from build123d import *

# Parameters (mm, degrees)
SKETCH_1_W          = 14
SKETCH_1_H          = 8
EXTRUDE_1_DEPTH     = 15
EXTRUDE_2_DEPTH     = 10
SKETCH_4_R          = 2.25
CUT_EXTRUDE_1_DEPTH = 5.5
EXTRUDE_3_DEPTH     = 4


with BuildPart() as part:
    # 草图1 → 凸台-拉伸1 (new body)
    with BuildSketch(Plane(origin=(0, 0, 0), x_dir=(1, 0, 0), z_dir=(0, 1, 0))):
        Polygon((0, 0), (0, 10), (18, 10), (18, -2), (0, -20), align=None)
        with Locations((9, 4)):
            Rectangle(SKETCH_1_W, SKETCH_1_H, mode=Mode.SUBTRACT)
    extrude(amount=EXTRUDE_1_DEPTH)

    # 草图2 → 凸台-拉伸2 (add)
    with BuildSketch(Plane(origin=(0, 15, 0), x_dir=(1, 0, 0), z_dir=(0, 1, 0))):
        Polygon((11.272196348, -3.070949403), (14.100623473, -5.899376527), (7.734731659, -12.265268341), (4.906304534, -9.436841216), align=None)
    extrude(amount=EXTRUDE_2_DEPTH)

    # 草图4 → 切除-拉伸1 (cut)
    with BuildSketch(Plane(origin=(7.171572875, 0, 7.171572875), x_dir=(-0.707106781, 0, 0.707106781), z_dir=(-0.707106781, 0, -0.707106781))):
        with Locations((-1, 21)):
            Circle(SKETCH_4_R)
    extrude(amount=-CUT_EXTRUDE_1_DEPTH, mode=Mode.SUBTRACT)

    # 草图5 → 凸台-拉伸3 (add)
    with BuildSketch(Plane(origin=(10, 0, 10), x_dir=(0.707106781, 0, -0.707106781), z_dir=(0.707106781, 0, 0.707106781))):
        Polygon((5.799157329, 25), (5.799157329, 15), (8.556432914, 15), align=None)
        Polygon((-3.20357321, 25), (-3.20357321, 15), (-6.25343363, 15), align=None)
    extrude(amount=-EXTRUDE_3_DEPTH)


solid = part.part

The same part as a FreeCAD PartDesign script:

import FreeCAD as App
import Part
import Sketcher
Q = App.Units.Quantity


def add_polygon(sketch, points):
    """Adds a closed chain of lines whose ends are joined by coincident constraints."""
    first, n = sketch.GeometryCount, len(points)
    for a, b in zip(points, points[1:] + points[:1]):
        sketch.addGeometry(Part.LineSegment(App.Vector(*a, 0), App.Vector(*b, 0)), False)
    for i in range(n):
        sketch.addConstraint(Sketcher.Constraint("Coincident", first + i, 2, first + (i + 1) % n, 1))

doc = App.newDocument("Part")
body = doc.addObject("PartDesign::Body", "Body")

# Sketch on XZ plane
sketch1 = body.newObject("Sketcher::SketchObject", "Sketch")
sketch1.AttachmentSupport = (doc.getObject("XZ_Plane"), [""])
sketch1.MapMode = "FlatFace"
add_polygon(sketch1, [(0, -10), (0, 20), (18, 2), (18, -10)])  # lines 0-3
add_polygon(sketch1, [(2, 0), (2, -8), (16, -8), (16, 0)])  # lines 4-7
sketch1.addConstraint(Sketcher.Constraint("Vertical", 0))
sketch1.addConstraint(Sketcher.Constraint("Vertical", 2))
sketch1.addConstraint(Sketcher.Constraint("Horizontal", 3))
sketch1.addConstraint(Sketcher.Constraint("Vertical", 4))
sketch1.addConstraint(Sketcher.Constraint("Horizontal", 5))
sketch1.addConstraint(Sketcher.Constraint("Vertical", 6))
sketch1.addConstraint(Sketcher.Constraint("Horizontal", 7))
sketch1.addConstraint(Sketcher.Constraint("PointOnObject", 0, 2, -2))
sketch1.addConstraint(Sketcher.Constraint("PointOnObject", 6, 2, -1))
sketch1.addConstraint(Sketcher.Constraint("DistanceX", 3, 2, 3, 1, 18.0))
sketch1.addConstraint(Sketcher.Constraint("DistanceX", 5, 1, 5, 2, 14.0))
sketch1.addConstraint(Sketcher.Constraint("DistanceY", 0, 1, 0, 2, 30.0))
sketch1.addConstraint(Sketcher.Constraint("DistanceY", 2, 2, 2, 1, 12.0))
sketch1.addConstraint(Sketcher.Constraint("DistanceY", 4, 2, 4, 1, 8.0))
sketch1.addConstraint(Sketcher.Constraint("DistanceY", -1, 1, 0, 2, 20.0))
sketch1.addConstraint(Sketcher.Constraint("DistanceX", -1, 1, 4, 2, 2.0))
pad1 = body.newObject("PartDesign::Pad", "Pad")
pad1.Profile = sketch1
pad1.Length = 15
pad1.Reversed = True

# Sketch on XZ plane
sketch2 = body.newObject("Sketcher::SketchObject", "Sketch001")
sketch2.AttachmentSupport = (doc.getObject("XZ_Plane"), [""])
sketch2.MapMode = "FlatFace"
sketch2.AttachmentOffset = App.Placement(App.Vector(0, 0, -15), App.Rotation())
add_polygon(sketch2, [(14.1, 5.9), (11.3, 3.1), (4.9, 9.4), (7.7, 12.3)])  # lines 0-3
sketch2.addConstraint(Sketcher.Constraint("Perpendicular", 0, 1))
sketch2.addConstraint(Sketcher.Constraint("Perpendicular", 1, 2))
sketch2.addConstraint(Sketcher.Constraint("Perpendicular", 2, 3))
sketch2.addConstraint(Sketcher.Constraint("Angle", 0, Q("-135 deg")))
sketch2.addConstraint(Sketcher.Constraint("Distance", 0, 4.0))
sketch2.addConstraint(Sketcher.Constraint("Distance", 1, 9.002731))
sketch2.addConstraint(Sketcher.Constraint("DistanceY", -1, 1, 0, 2, 3.070949))
sketch2.addConstraint(Sketcher.Constraint("DistanceX", -1, 1, 2, 2, 7.734732))
pad2 = body.newObject("PartDesign::Pad", "Pad001")
pad2.Profile = sketch2
pad2.Length = 10
pad2.Reversed = True

# Sketch on an angled plane
sketch3 = body.newObject("Sketcher::SketchObject", "Sketch002")
sketch3.Placement = App.Placement(App.Vector(7.171573, 0, 7.171573), App.Rotation(App.Vector(-0.707106781, 0, 0.707106781), App.Vector(0, 0.999999999, 0), App.Vector(-0.707106781, 0, -0.707106781), "ZXY"))
sketch3.addGeometry(Part.Circle(App.Vector(-1, 21, 0), App.Vector(0, 0, 1), 2.2), False)
sketch3.addConstraint(Sketcher.Constraint("Diameter", 0, 4.5))
sketch3.addConstraint(Sketcher.Constraint("DistanceX", 0, 3, -1, 1, 1.0))
sketch3.addConstraint(Sketcher.Constraint("DistanceY", -1, 1, 0, 3, 21.0))
pocket1 = body.newObject("PartDesign::Pocket", "Pocket")
pocket1.Profile = sketch3
pocket1.Length = 5.5

# Sketch on an angled plane
sketch4 = body.newObject("Sketcher::SketchObject", "Sketch003")
sketch4.Placement = App.Placement(App.Vector(10, 0, 10), App.Rotation(App.Vector(0.707106781, 0, -0.707106781), App.Vector(0, 0.999999999, 0), App.Vector(0.707106781, 0, 0.707106781), "ZXY"))
add_polygon(sketch4, [(5.8, 25), (5.8, 15), (8.6, 15)])  # lines 0-2
add_polygon(sketch4, [(-3.2, 15), (-3.2, 25), (-6.3, 15)])  # lines 3-5
sketch4.addConstraint(Sketcher.Constraint("Vertical", 0))
sketch4.addConstraint(Sketcher.Constraint("Horizontal", 1))
sketch4.addConstraint(Sketcher.Constraint("Vertical", 3))
sketch4.addConstraint(Sketcher.Constraint("Horizontal", 5))
sketch4.addConstraint(Sketcher.Constraint("Horizontal", 2, 2, 3, 2))
sketch4.addConstraint(Sketcher.Constraint("Horizontal", 1, 2, 4, 2))
sketch4.addConstraint(Sketcher.Constraint("DistanceY", 0, 2, 0, 1, 10.0))
sketch4.addConstraint(Sketcher.Constraint("DistanceY", -1, 1, 0, 2, 15.0))
sketch4.addConstraint(Sketcher.Constraint("DistanceX", 5, 1, 5, 2, 3.04986))
sketch4.addConstraint(Sketcher.Constraint("DistanceX", 1, 1, 1, 2, 2.757276))
sketch4.addConstraint(Sketcher.Constraint("DistanceX", 3, 2, 2, 2, 9.002731))
sketch4.addConstraint(Sketcher.Constraint("DistanceX", -1, 1, 0, 2, 5.799157))
pad3 = body.newObject("PartDesign::Pad", "Pad002")
pad3.Profile = sketch4
pad3.Length = 4
pad3.Reversed = True

doc.recompute()
